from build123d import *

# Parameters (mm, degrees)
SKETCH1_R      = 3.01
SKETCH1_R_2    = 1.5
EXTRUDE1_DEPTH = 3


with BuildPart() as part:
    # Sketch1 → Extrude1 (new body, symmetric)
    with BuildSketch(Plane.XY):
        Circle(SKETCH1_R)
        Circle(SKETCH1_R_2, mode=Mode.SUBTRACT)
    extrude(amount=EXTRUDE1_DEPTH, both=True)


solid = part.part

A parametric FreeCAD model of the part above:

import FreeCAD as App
import Part
import Sketcher
from FreeCAD import Vector
Q = App.Units.Quantity

doc = App.newDocument("Part")
body = doc.addObject("PartDesign::Body", "Body")

# Sketch on XY plane
sketch1 = doc.addObject("Sketcher::SketchObject", "Sketch")
body.addObject(sketch1)
sketch1.AttachmentSupport = (doc.XY_Plane, [""])
sketch1.MapMode = "FlatFace"
sketch1.addGeometry(Part.Circle(Vector(0, 0, 0), Vector(0, 0, 1), 3.01), False)
sketch1.addGeometry(Part.Circle(Vector(0, 0, 0), Vector(0, 0, 1), 1.5), False)
sketch1.addConstraint(Sketcher.Constraint("Coincident", 0, 3, -1, 1))
sketch1.addConstraint(Sketcher.Constraint("Coincident", 1, 3, -1, 1))
sketch1.addConstraint(Sketcher.Constraint("Diameter", 1, Q("3 mm")))
sketch1.addConstraint(Sketcher.Constraint("Diameter", 0, Q("6.02 mm")))
pad1 = doc.addObject("PartDesign::Pad", "Pad")
body.addObject(pad1)
pad1.Profile = sketch1
pad1.Length = 6
pad1.Midplane = True

doc.recompute()
